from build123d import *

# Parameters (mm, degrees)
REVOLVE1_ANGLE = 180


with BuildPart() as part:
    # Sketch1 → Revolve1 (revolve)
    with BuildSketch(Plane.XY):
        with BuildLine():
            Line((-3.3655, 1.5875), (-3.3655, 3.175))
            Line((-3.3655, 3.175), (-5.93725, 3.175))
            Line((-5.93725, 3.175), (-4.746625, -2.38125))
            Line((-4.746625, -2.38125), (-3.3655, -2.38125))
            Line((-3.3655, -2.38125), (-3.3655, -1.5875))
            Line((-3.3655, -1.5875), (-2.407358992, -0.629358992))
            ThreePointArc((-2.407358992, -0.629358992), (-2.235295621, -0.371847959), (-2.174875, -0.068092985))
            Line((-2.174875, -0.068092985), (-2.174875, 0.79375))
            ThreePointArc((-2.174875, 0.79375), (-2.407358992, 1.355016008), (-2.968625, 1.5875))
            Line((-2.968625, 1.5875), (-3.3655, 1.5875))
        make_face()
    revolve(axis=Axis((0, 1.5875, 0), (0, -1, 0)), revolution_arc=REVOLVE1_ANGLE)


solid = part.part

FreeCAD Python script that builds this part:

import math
import FreeCAD as App
import Part
import Sketcher
from FreeCAD import Vector
Q = App.Units.Quantity

doc = App.newDocument("Part")
body = doc.addObject("PartDesign::Body", "Body")

# Sketch on XY plane
sketch1 = body.newObject("Sketcher::SketchObject", "Sketch")
sketch1.AttachmentSupport = (doc.getObject("XY_Plane"), [""])
sketch1.MapMode = "FlatFace"
sketch1.addGeometry([
    Part.LineSegment(Vector(-3.37, 1.59, 0), Vector(-3.37, 3.17, 0)),  # 0
    Part.LineSegment(Vector(-3.37, 3.17, 0), Vector(-5.94, 3.17, 0)),  # 1
    Part.LineSegment(Vector(-5.94, 3.17, 0), Vector(-4.75, -2.38, 0)),  # 2
    Part.LineSegment(Vector(-4.75, -2.38, 0), Vector(-3.37, -2.38, 0)),  # 3
    Part.LineSegment(Vector(-3.37, -2.38, 0), Vector(-3.37, -1.59, 0)),  # 4
    Part.LineSegment(Vector(-3.37, -1.59, 0), Vector(-2.41, -0.63, 0)),  # 5
    Part.ArcOfCircle(Part.Circle(Vector(-2.97, -0.07, 0), Vector(0, 0, 1), 0.79), math.radians(-45), math.radians(0)),  # 6
    Part.LineSegment(Vector(-2.17, -0.07, 0), Vector(-2.17, 0.79, 0)),  # 7
    Part.ArcOfCircle(Part.Circle(Vector(-2.97, 0.79, 0), Vector(0, 0, 1), 0.79), math.radians(0), math.radians(90)),  # 8
    Part.LineSegment(Vector(-2.97, 1.59, 0), Vector(-3.37, 1.59, 0)),  # 9
], False)
sketch1.addConstraint([
    Sketcher.Constraint("Coincident", 0, 2, 1, 1),
    Sketcher.Constraint("Coincident", 1, 2, 2, 1),
    Sketcher.Constraint("Coincident", 2, 2, 3, 1),
    Sketcher.Constraint("Coincident", 3, 2, 4, 1),
    Sketcher.Constraint("Coincident", 4, 2, 5, 1),
    Sketcher.Constraint("Tangent", 5, 2, 6, 1),
    Sketcher.Constraint("Tangent", 6, 2, 7, 1),
    Sketcher.Constraint("Tangent", 7, 2, 8, 1),
    Sketcher.Constraint("Tangent", 8, 2, 9, 1),
    Sketcher.Constraint("Coincident", 9, 2, 0, 1),
    Sketcher.Constraint("Vertical", 0),
    Sketcher.Constraint("Horizontal", 1),
    Sketcher.Constraint("Horizontal", 3),
    Sketcher.Constraint("Vertical", 4),
    Sketcher.Constraint("Vertical", 7),
    Sketcher.Constraint("Horizontal", 9),
    Sketcher.Constraint("Equal", 6, 8),
    Sketcher.Constraint("Symmetric", 4, 2, 9, 2, -1),
    Sketcher.Constraint("Angle", 5, Q("45 deg")),
    Sketcher.Constraint("Radius", 6, Q("0.03125 in")),
    Sketcher.Constraint("DistanceX", 9, 2, 9, 1, Q("0.015625 in")),
    Sketcher.Constraint("DistanceY", 0, 1, 0, 2, Q("0.0625 in")),
    Sketcher.Constraint("DistanceY", 4, 1, 4, 2, Q("0.03125 in")),
    Sketcher.Constraint("DistanceX", 2, 2, 6, 3, Q("0.07 in")),
    Sketcher.Constraint("DistanceY", -1, 1, 8, 3, Q("0.03125 in")),
    Sketcher.Constraint("DistanceX", 1, 2, 2, 2, Q("0.046875 in")),
    Sketcher.Constraint("DistanceX", 0, 2, -1, 1, Q("0.1325 in")),
])
revolution = body.newObject("PartDesign::Revolution", "Revolution")
revolution.Profile = sketch1
revolution.ReferenceAxis = (sketch1, ["V_Axis"])
revolution.Angle = 180
revolution.Reversed = True

doc.recompute()
